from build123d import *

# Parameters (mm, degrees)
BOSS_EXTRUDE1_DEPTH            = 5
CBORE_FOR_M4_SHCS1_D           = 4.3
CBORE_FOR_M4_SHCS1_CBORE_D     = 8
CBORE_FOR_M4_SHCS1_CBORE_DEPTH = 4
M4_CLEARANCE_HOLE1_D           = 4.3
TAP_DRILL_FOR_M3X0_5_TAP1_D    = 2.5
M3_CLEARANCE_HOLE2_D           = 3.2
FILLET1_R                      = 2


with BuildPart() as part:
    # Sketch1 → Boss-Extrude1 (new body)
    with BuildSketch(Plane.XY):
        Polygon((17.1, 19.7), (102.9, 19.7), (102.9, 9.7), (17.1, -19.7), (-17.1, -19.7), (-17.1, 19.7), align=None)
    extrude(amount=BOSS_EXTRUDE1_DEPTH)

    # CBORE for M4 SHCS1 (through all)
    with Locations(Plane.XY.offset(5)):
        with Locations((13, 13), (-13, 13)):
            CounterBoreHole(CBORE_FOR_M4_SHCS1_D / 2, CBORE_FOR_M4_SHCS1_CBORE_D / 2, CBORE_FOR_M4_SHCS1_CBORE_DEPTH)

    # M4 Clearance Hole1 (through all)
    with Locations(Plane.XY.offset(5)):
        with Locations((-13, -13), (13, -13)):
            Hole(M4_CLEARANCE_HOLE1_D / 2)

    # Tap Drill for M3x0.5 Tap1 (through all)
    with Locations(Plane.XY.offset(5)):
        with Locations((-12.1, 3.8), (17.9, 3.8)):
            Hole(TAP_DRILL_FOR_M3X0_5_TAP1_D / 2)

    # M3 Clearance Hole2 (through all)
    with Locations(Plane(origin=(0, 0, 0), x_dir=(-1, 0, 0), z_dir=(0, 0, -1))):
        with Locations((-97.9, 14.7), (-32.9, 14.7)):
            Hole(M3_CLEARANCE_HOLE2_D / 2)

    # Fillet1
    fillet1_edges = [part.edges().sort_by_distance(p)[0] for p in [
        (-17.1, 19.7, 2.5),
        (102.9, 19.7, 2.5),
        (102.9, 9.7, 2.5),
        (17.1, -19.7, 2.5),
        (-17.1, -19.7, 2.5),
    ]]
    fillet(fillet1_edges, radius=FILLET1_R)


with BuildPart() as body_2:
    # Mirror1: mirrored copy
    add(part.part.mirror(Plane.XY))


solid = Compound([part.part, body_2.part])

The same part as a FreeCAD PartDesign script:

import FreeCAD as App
import Part
import Sketcher


def edges_at(feature, points):
    """Names of the edges that pass closest to the given points."""
    edges = feature.Shape.Edges
    near = lambda p: min(range(len(edges)), key=lambda i: edges[i].distToShape(Part.Vertex(*p))[0])
    return sorted({f"Edge{near(p) + 1}" for p in points})


def add_polygon(sketch, points):
    """Adds a closed chain of lines whose ends are joined by coincident constraints."""
    first, n = sketch.GeometryCount, len(points)
    for a, b in zip(points, points[1:] + points[:1]):
        sketch.addGeometry(Part.LineSegment(App.Vector(*a, 0), App.Vector(*b, 0)), False)
    for i in range(n):
        sketch.addConstraint(Sketcher.Constraint("Coincident", first + i, 2, first + (i + 1) % n, 1))

doc = App.newDocument("Part")
body = doc.addObject("PartDesign::Body", "Body")

# Sketch on XY plane
sketch1 = body.newObject("Sketcher::SketchObject", "Sketch")
sketch1.AttachmentSupport = (doc.getObject("XY_Plane"), [""])
sketch1.MapMode = "FlatFace"
add_polygon(sketch1, [(103, 20), (-17, 20), (-17, -20), (17, -20), (103, 10)])  # lines 0-4
sketch1.addConstraint(Sketcher.Constraint("Horizontal", 0))
sketch1.addConstraint(Sketcher.Constraint("Vertical", 1))
sketch1.addConstraint(Sketcher.Constraint("Horizontal", 2))
sketch1.addConstraint(Sketcher.Constraint("Vertical", 4))
sketch1.addConstraint(Sketcher.Constraint("Symmetric", 0, 2, 2, 2, -1, 1))
sketch1.addConstraint(Sketcher.Constraint("DistanceX", 0, 2, 0, 1, 120.0))
sketch1.addConstraint(Sketcher.Constraint("DistanceY", 4, 1, 4, 2, 10.0))
sketch1.addConstraint(Sketcher.Constraint("DistanceX", 2, 1, 2, 2, 34.2))
sketch1.addConstraint(Sketcher.Constraint("DistanceY", 1, 2, 1, 1, 39.4))
pad1 = body.newObject("PartDesign::Pad", "Pad")
pad1.Profile = sketch1
pad1.Length = 5

# Sketch on XY plane
sketch2 = body.newObject("Sketcher::SketchObject", "Sketch001")
sketch2.AttachmentSupport = (doc.getObject("XY_Plane"), [""])
sketch2.MapMode = "FlatFace"
sketch2.AttachmentOffset = App.Placement(App.Vector(0, 0, 5), App.Rotation())
sketch2.addGeometry(Part.Circle(App.Vector(13, 13, 0), App.Vector(0, 0, 1), 2.1), False)
sketch2.addGeometry(Part.Circle(App.Vector(-13, 13, 0), App.Vector(0, 0, 1), 2.1), False)
sketch2.addConstraint(Sketcher.Constraint("Equal", 0, 1))
sketch2.addConstraint(Sketcher.Constraint("Symmetric", 0, 3, 1, 3, -2))
sketch2.addConstraint(Sketcher.Constraint("Diameter", 0, 4.3))
sketch2.addConstraint(Sketcher.Constraint("DistanceX", -1, 1, 0, 3, 13.0))
sketch2.addConstraint(Sketcher.Constraint("DistanceY", -1, 1, 0, 3, 13.0))
doc.recompute()
hole = body.newObject("PartDesign::Hole", "Hole")
hole.Profile = sketch2
hole.ThreadType = "None"
hole.Diameter = 4.3
hole.DepthType = "ThroughAll"
hole.HoleCutType = "Counterbore"
hole.HoleCutDiameter = 8
hole.HoleCutDepth = 4

# Sketch on XY plane
sketch3 = body.newObject("Sketcher::SketchObject", "Sketch002")
sketch3.AttachmentSupport = (doc.getObject("XY_Plane"), [""])
sketch3.MapMode = "FlatFace"
sketch3.AttachmentOffset = App.Placement(App.Vector(0, 0, 5), App.Rotation())
sketch3.addGeometry(Part.Circle(App.Vector(-13, -13, 0), App.Vector(0, 0, 1), 2.1), False)
sketch3.addGeometry(Part.Circle(App.Vector(13, -13, 0), App.Vector(0, 0, 1), 2.1), False)
sketch3.addConstraint(Sketcher.Constraint("Equal", 0, 1))
sketch3.addConstraint(Sketcher.Constraint("Symmetric", 0, 3, 1, 3, -2))
sketch3.addConstraint(Sketcher.Constraint("Diameter", 0, 4.3))
sketch3.addConstraint(Sketcher.Constraint("DistanceX", 0, 3, -1, 1, 13.0))
sketch3.addConstraint(Sketcher.Constraint("DistanceY", 0, 3, -1, 1, 13.0))
doc.recompute()
hole2 = body.newObject("PartDesign::Hole", "Hole001")
hole2.Profile = sketch3
hole2.ThreadType = "None"
hole2.Diameter = 4.3
hole2.DepthType = "ThroughAll"

# Sketch on XY plane
sketch4 = body.newObject("Sketcher::SketchObject", "Sketch003")
sketch4.AttachmentSupport = (doc.getObject("XY_Plane"), [""])
sketch4.MapMode = "FlatFace"
sketch4.AttachmentOffset = App.Placement(App.Vector(0, 0, 5), App.Rotation())
sketch4.addGeometry(Part.Circle(App.Vector(-12.1, 3.8, 0), App.Vector(0, 0, 1), 1.2), False)
sketch4.addGeometry(Part.Circle(App.Vector(17.9, 3.8, 0), App.Vector(0, 0, 1), 1.2), False)
sketch4.addConstraint(Sketcher.Constraint("Equal", 0, 1))
sketch4.addConstraint(Sketcher.Constraint("Horizontal", 0, 3, 1, 3))
sketch4.addConstraint(Sketcher.Constraint("Diameter", 0, 2.5))
sketch4.addConstraint(Sketcher.Constraint("DistanceX", 0, 3, 1, 3, 30.0))
sketch4.addConstraint(Sketcher.Constraint("DistanceX", 0, 3, -1, 1, 12.1))
sketch4.addConstraint(Sketcher.Constraint("DistanceY", -1, 1, 0, 3, 3.8))
doc.recompute()
hole3 = body.newObject("PartDesign::Hole", "Hole002")
hole3.Profile = sketch4
hole3.ThreadType = "None"
hole3.Diameter = 2.5
hole3.DepthType = "ThroughAll"

# Sketch on XY plane
sketch5 = body.newObject("Sketcher::SketchObject", "Sketch004")
sketch5.AttachmentSupport = (doc.getObject("XY_Plane"), [""])
sketch5.MapMode = "FlatFace"
sketch5.addGeometry(Part.Circle(App.Vector(97.9, 14.7, 0), App.Vector(0, 0, 1), 1.6), False)
sketch5.addGeometry(Part.Circle(App.Vector(32.9, 14.7, 0), App.Vector(0, 0, 1), 1.6), False)
sketch5.addConstraint(Sketcher.Constraint("Equal", 0, 1))
sketch5.addConstraint(Sketcher.Constraint("Horizontal", 0, 3, 1, 3))
sketch5.addConstraint(Sketcher.Constraint("Diameter", 0, 3.2))
sketch5.addConstraint(Sketcher.Constraint("DistanceX", 1, 3, 0, 3, 65.0))
sketch5.addConstraint(Sketcher.Constraint("DistanceX", -1, 1, 0, 3, 97.9))
sketch5.addConstraint(Sketcher.Constraint("DistanceY", -1, 1, 0, 3, 14.7))
doc.recompute()
hole4 = body.newObject("PartDesign::Hole", "Hole003")
hole4.Profile = sketch5
hole4.ThreadType = "None"
hole4.Diameter = 3.2
hole4.DepthType = "ThroughAll"
hole4.Reversed = True
doc.recompute()

fillet = body.newObject("PartDesign::Fillet", "Fillet")
fillet.Base = (hole4, edges_at(hole4, [
    (-17.1, 19.7, 2.5),
    (102.9, 19.7, 2.5),
    (102.9, 9.7, 2.5),
    (17.1, -19.7, 2.5),
    (-17.1, -19.7, 2.5),
]))
fillet.Radius = 2
body2 = doc.addObject("PartDesign::Body", "Body001")
doc.recompute()

mirroring = doc.addObject("Part::Mirroring", "Mirroring")
mirroring.Source = body
mirroring.Base = App.Vector(0, 0, 0)
mirroring.Normal = App.Vector(0, 0, 1)
body2.BaseFeature = mirroring
doc.recompute()
mirroring.Visibility = False

doc.recompute()
